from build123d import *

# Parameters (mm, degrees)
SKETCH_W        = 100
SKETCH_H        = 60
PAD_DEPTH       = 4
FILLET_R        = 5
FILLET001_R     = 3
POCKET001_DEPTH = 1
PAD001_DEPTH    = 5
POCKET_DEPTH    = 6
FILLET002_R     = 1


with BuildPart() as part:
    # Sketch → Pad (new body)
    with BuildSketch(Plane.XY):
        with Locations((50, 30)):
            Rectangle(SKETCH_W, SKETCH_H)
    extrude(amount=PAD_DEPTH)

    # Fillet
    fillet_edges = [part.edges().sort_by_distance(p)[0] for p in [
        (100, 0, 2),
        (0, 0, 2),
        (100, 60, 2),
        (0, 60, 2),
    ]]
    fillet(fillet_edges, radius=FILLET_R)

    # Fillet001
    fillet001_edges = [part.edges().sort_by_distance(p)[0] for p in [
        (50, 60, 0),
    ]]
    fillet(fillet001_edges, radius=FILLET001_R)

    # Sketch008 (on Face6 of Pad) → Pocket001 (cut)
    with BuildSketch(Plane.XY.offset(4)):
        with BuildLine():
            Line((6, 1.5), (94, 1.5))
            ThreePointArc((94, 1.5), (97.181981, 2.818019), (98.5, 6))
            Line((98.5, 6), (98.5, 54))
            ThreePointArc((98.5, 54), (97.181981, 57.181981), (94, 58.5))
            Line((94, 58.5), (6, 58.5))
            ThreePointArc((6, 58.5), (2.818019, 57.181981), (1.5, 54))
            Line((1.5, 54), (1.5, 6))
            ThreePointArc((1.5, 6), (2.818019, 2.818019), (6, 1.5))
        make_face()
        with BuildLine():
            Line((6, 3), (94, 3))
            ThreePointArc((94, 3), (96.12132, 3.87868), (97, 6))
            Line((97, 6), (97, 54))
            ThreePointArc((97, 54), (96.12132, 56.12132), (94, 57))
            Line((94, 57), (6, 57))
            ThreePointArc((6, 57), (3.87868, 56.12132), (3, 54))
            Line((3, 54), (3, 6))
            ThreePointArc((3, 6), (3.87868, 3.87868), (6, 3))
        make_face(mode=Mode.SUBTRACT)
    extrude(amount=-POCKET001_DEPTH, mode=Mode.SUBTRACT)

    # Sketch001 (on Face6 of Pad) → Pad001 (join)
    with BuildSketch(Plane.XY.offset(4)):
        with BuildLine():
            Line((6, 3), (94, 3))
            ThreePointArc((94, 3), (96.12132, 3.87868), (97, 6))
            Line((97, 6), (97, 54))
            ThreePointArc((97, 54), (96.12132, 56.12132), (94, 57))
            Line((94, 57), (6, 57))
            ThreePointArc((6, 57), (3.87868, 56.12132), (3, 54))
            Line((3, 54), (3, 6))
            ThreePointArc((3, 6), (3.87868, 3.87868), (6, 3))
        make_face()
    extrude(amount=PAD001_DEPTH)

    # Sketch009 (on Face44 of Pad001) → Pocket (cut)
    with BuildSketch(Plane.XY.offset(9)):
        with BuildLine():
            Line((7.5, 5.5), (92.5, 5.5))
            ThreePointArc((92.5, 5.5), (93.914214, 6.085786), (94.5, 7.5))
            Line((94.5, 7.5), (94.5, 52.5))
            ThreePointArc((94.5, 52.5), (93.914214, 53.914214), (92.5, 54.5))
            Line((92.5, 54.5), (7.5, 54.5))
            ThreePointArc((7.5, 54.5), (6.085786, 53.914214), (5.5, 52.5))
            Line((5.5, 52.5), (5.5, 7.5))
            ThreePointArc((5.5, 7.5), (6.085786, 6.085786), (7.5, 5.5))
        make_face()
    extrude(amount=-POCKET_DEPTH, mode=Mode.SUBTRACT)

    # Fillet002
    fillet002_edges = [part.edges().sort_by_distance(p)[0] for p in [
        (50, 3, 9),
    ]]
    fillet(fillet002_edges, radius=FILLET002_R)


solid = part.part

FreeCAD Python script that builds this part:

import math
import FreeCAD as App
import Part
import Sketcher


def edges_at(feature, points):
    """Names of the edges that pass closest to the given points."""
    edges = feature.Shape.Edges
    near = lambda p: min(range(len(edges)), key=lambda i: edges[i].distToShape(Part.Vertex(*p))[0])
    return sorted({f"Edge{near(p) + 1}" for p in points})


def add_polygon(sketch, points):
    """Adds a closed chain of lines whose ends are joined by coincident constraints."""
    first, n = sketch.GeometryCount, len(points)
    for a, b in zip(points, points[1:] + points[:1]):
        sketch.addGeometry(Part.LineSegment(App.Vector(*a, 0), App.Vector(*b, 0)), False)
    for i in range(n):
        sketch.addConstraint(Sketcher.Constraint("Coincident", first + i, 2, first + (i + 1) % n, 1))

doc = App.newDocument("Part")
params = doc.addObject("Spreadsheet::Sheet", "Params")
for row, (alias, value) in enumerate([
    ("sketch1_width", "100 mm"),
    ("sketch1_height", "60 mm"),
    ("pad1_length", "4 mm"),
    ("fillet_radius", "5 mm"),
    ("fillet2_radius", "3 mm"),
    ("sketch2_radius", "3.000001 mm"),
    ("sketch2_radius2", "4.499998 mm"),
    ("sketch2_width", "88 mm"),
    ("sketch2_height", "48 mm"),
    ("pocket1_length", "1 mm"),
    ("sketch3_radius", "3.000001 mm"),
    ("sketch3_width", "88 mm"),
    ("sketch3_height", "48 mm"),
    ("pad2_length", "5 mm"),
    ("sketch4_radius", "1.999999 mm"),
    ("sketch4_width", "85 mm"),
    ("sketch4_height", "45 mm"),
    ("pocket2_length", "6 mm"),
    ("fillet3_radius", "1 mm"),
], start=1):
    params.set(f"A{row}", alias)
    params.set(f"B{row}", "=" + value)
    params.setAlias(f"B{row}", alias)

body = doc.addObject("PartDesign::Body", "Body")

# Sketch on XY plane
sketch1 = body.newObject("Sketcher::SketchObject", "Sketch")
sketch1.AttachmentSupport = (doc.getObject("XY_Plane"), [""])
sketch1.MapMode = "FlatFace"
add_polygon(sketch1, [(0, 60), (0, 0), (100, 0), (100, 60)])  # lines 0-3
sketch1.addConstraint([
    Sketcher.Constraint("Vertical", 0),
    Sketcher.Constraint("Horizontal", 1),
    Sketcher.Constraint("Vertical", 2),
    Sketcher.Constraint("Horizontal", 3),
    Sketcher.Constraint("Coincident", 0, 2, -1, 1),
    Sketcher.Constraint("DistanceX", 1, 1, 1, 2, 100.0),
    Sketcher.Constraint("DistanceY", 0, 2, 0, 1, 60.0),
])
sketch1.setExpression("Constraints[9]", "Params.sketch1_width")
sketch1.setExpression("Constraints[10]", "Params.sketch1_height")
pad1 = body.newObject("PartDesign::Pad", "Pad")
pad1.Profile = sketch1
pad1.setExpression("Length", "Params.pad1_length")
doc.recompute()

fillet = body.newObject("PartDesign::Fillet", "Fillet")
fillet.Base = (pad1, edges_at(pad1, [
    (100, 0, 2),
    (0, 0, 2),
    (100, 60, 2),
    (0, 60, 2),
]))
fillet.setExpression("Radius", "Params.fillet_radius")
doc.recompute()

fillet2 = body.newObject("PartDesign::Fillet", "Fillet001")
fillet2.Base = (fillet, edges_at(fillet, [(50, 60, 0)]))
fillet2.setExpression("Radius", "Params.fillet2_radius")

# Sketch on XY plane
sketch2 = body.newObject("Sketcher::SketchObject", "Sketch001")
sketch2.AttachmentSupport = (doc.getObject("XY_Plane"), [""])
sketch2.MapMode = "FlatFace"
sketch2.AttachmentOffset = App.Placement(App.Vector(0, 0, 4), App.Rotation())
sketch2.addGeometry([
    Part.LineSegment(App.Vector(6, 1.5, 0), App.Vector(94, 1.5, 0)),  # 0
    Part.ArcOfCircle(Part.Circle(App.Vector(94, 6, 0), App.Vector(0, 0, 1), 4.5), math.radians(-90), math.radians(0)),  # 1
    Part.LineSegment(App.Vector(98.5, 6, 0), App.Vector(98.5, 54, 0)),  # 2
    Part.ArcOfCircle(Part.Circle(App.Vector(94, 54, 0), App.Vector(0, 0, 1), 4.5), math.radians(0), math.radians(90)),  # 3
    Part.LineSegment(App.Vector(94, 58.5, 0), App.Vector(6, 58.5, 0)),  # 4
    Part.ArcOfCircle(Part.Circle(App.Vector(6, 54, 0), App.Vector(0, 0, 1), 4.5), math.radians(90), math.radians(180)),  # 5
    Part.LineSegment(App.Vector(1.5, 54, 0), App.Vector(1.5, 6, 0)),  # 6
    Part.ArcOfCircle(Part.Circle(App.Vector(6, 6, 0), App.Vector(0, 0, 1), 4.5), math.radians(180), math.radians(270)),  # 7
    Part.LineSegment(App.Vector(94, 3, 0), App.Vector(6, 3, 0)),  # 8
    Part.ArcOfCircle(Part.Circle(App.Vector(6, 6, 0), App.Vector(0, 0, 1), 3), math.radians(-180), math.radians(-90)),  # 9
    Part.LineSegment(App.Vector(3, 6, 0), App.Vector(3, 54, 0)),  # 10
    Part.ArcOfCircle(Part.Circle(App.Vector(6, 54, 0), App.Vector(0, 0, 1), 3), math.radians(90), math.radians(180)),  # 11
    Part.LineSegment(App.Vector(6, 57, 0), App.Vector(94, 57, 0)),  # 12
    Part.ArcOfCircle(Part.Circle(App.Vector(94, 54, 0), App.Vector(0, 0, 1), 3), math.radians(0), math.radians(90)),  # 13
    Part.LineSegment(App.Vector(97, 54, 0), App.Vector(97, 6, 0)),  # 14
    Part.ArcOfCircle(Part.Circle(App.Vector(94, 6, 0), App.Vector(0, 0, 1), 3), math.radians(-90), math.radians(0)),  # 15
], False)
sketch2.addConstraint([
    Sketcher.Constraint("Tangent", 0, 2, 1, 1),
    Sketcher.Constraint("Tangent", 1, 2, 2, 1),
    Sketcher.Constraint("Tangent", 2, 2, 3, 1),
    Sketcher.Constraint("Tangent", 3, 2, 4, 1),
    Sketcher.Constraint("Tangent", 4, 2, 5, 1),
    Sketcher.Constraint("Tangent", 5, 2, 6, 1),
    Sketcher.Constraint("Tangent", 6, 2, 7, 1),
    Sketcher.Constraint("Tangent", 7, 2, 0, 1),
    Sketcher.Constraint("Tangent", 8, 2, 9, 2),
    Sketcher.Constraint("Tangent", 9, 1, 10, 1),
    Sketcher.Constraint("Tangent", 10, 2, 11, 2),
    Sketcher.Constraint("Tangent", 11, 1, 12, 1),
    Sketcher.Constraint("Tangent", 12, 2, 13, 2),
    Sketcher.Constraint("Tangent", 13, 1, 14, 1),
    Sketcher.Constraint("Tangent", 14, 2, 15, 2),
    Sketcher.Constraint("Tangent", 15, 1, 8, 1),
    Sketcher.Constraint("Horizontal", 0),
    Sketcher.Constraint("Vertical", 2),
    Sketcher.Constraint("Horizontal", 4),
    Sketcher.Constraint("Vertical", 6),
    Sketcher.Constraint("Horizontal", 8),
    Sketcher.Constraint("Vertical", 10),
    Sketcher.Constraint("Horizontal", 12),
    Sketcher.Constraint("Vertical", 14),
    Sketcher.Constraint("Coincident", 9, 3, 7, 3),
    Sketcher.Constraint("Coincident", 11, 3, 5, 3),
    Sketcher.Constraint("Coincident", 13, 3, 3, 3),
    Sketcher.Constraint("Equal", 1, 3),
    Sketcher.Constraint("Equal", 3, 5),
    Sketcher.Constraint("Equal", 5, 7),
    Sketcher.Constraint("Equal", 13, 15),
    Sketcher.Constraint("Radius", 9, 3.000001),
    Sketcher.Constraint("Radius", 1, 4.499998),
    Sketcher.Constraint("DistanceX", 0, 1, 0, 2, 88.0),
    Sketcher.Constraint("DistanceY", 2, 1, 2, 2, 48.0),
    Sketcher.Constraint("DistanceX", -1, 1, 1, 3, 94.000002),
    Sketcher.Constraint("DistanceY", -1, 1, 1, 3, 5.999998),
])
sketch2.setExpression("Constraints[31]", "Params.sketch2_radius")
sketch2.setExpression("Constraints[32]", "Params.sketch2_radius2")
sketch2.setExpression("Constraints[33]", "Params.sketch2_width")
sketch2.setExpression("Constraints[34]", "Params.sketch2_height")
pocket1 = body.newObject("PartDesign::Pocket", "Pocket")
pocket1.Profile = sketch2
pocket1.setExpression("Length", "Params.pocket1_length")

# Sketch on XY plane
sketch3 = body.newObject("Sketcher::SketchObject", "Sketch002")
sketch3.AttachmentSupport = (doc.getObject("XY_Plane"), [""])
sketch3.MapMode = "FlatFace"
sketch3.AttachmentOffset = App.Placement(App.Vector(0, 0, 4), App.Rotation())
sketch3.addGeometry([
    Part.LineSegment(App.Vector(6, 3, 0), App.Vector(94, 3, 0)),  # 0
    Part.ArcOfCircle(Part.Circle(App.Vector(94, 6, 0), App.Vector(0, 0, 1), 3), math.radians(-90), math.radians(0)),  # 1
    Part.LineSegment(App.Vector(97, 6, 0), App.Vector(97, 54, 0)),  # 2
    Part.ArcOfCircle(Part.Circle(App.Vector(94, 54, 0), App.Vector(0, 0, 1), 3), math.radians(0), math.radians(90)),  # 3
    Part.LineSegment(App.Vector(94, 57, 0), App.Vector(6, 57, 0)),  # 4
    Part.ArcOfCircle(Part.Circle(App.Vector(6, 54, 0), App.Vector(0, 0, 1), 3), math.radians(90), math.radians(180)),  # 5
    Part.LineSegment(App.Vector(3, 54, 0), App.Vector(3, 6, 0)),  # 6
    Part.ArcOfCircle(Part.Circle(App.Vector(6, 6, 0), App.Vector(0, 0, 1), 3), math.radians(-180), math.radians(-90)),  # 7
], False)
sketch3.addConstraint([
    Sketcher.Constraint("Tangent", 0, 2, 1, 1),
    Sketcher.Constraint("Tangent", 1, 2, 2, 1),
    Sketcher.Constraint("Tangent", 2, 2, 3, 1),
    Sketcher.Constraint("Tangent", 3, 2, 4, 1),
    Sketcher.Constraint("Tangent", 4, 2, 5, 1),
    Sketcher.Constraint("Tangent", 5, 2, 6, 1),
    Sketcher.Constraint("Tangent", 6, 2, 7, 1),
    Sketcher.Constraint("Tangent", 7, 2, 0, 1),
    Sketcher.Constraint("Horizontal", 0),
    Sketcher.Constraint("Vertical", 2),
    Sketcher.Constraint("Horizontal", 4),
    Sketcher.Constraint("Vertical", 6),
    Sketcher.Constraint("Equal", 1, 3),
    Sketcher.Constraint("Equal", 3, 5),
    Sketcher.Constraint("Equal", 5, 7),
    Sketcher.Constraint("Radius", 1, 3.000001),
    Sketcher.Constraint("DistanceX", 0, 1, 0, 2, 88.0),
    Sketcher.Constraint("DistanceY", 2, 1, 2, 2, 48.0),
    Sketcher.Constraint("DistanceX", -1, 1, 1, 3, 93.999999),
    Sketcher.Constraint("DistanceY", -1, 1, 1, 3, 6.000001),
])
sketch3.setExpression("Constraints[15]", "Params.sketch3_radius")
sketch3.setExpression("Constraints[16]", "Params.sketch3_width")
sketch3.setExpression("Constraints[17]", "Params.sketch3_height")
pad2 = body.newObject("PartDesign::Pad", "Pad001")
pad2.Profile = sketch3
pad2.setExpression("Length", "Params.pad2_length")

# Sketch on XY plane
sketch4 = body.newObject("Sketcher::SketchObject", "Sketch003")
sketch4.AttachmentSupport = (doc.getObject("XY_Plane"), [""])
sketch4.MapMode = "FlatFace"
sketch4.AttachmentOffset = App.Placement(App.Vector(0, 0, 9), App.Rotation())
sketch4.addGeometry([
    Part.LineSegment(App.Vector(7.5, 5.5, 0), App.Vector(92.5, 5.5, 0)),  # 0
    Part.ArcOfCircle(Part.Circle(App.Vector(92.5, 7.5, 0), App.Vector(0, 0, 1), 2), math.radians(-90), math.radians(0)),  # 1
    Part.LineSegment(App.Vector(94.5, 7.5, 0), App.Vector(94.5, 52.5, 0)),  # 2
    Part.ArcOfCircle(Part.Circle(App.Vector(92.5, 52.5, 0), App.Vector(0, 0, 1), 2), math.radians(0), math.radians(90)),  # 3
    Part.LineSegment(App.Vector(92.5, 54.5, 0), App.Vector(7.5, 54.5, 0)),  # 4
    Part.ArcOfCircle(Part.Circle(App.Vector(7.5, 52.5, 0), App.Vector(0, 0, 1), 2), math.radians(90), math.radians(180)),  # 5
    Part.LineSegment(App.Vector(5.5, 52.5, 0), App.Vector(5.5, 7.5, 0)),  # 6
    Part.ArcOfCircle(Part.Circle(App.Vector(7.5, 7.5, 0), App.Vector(0, 0, 1), 2), math.radians(180), math.radians(270)),  # 7
], False)
sketch4.addConstraint([
    Sketcher.Constraint("Tangent", 0, 2, 1, 1),
    Sketcher.Constraint("Tangent", 1, 2, 2, 1),
    Sketcher.Constraint("Tangent", 2, 2, 3, 1),
    Sketcher.Constraint("Tangent", 3, 2, 4, 1),
    Sketcher.Constraint("Tangent", 4, 2, 5, 1),
    Sketcher.Constraint("Tangent", 5, 2, 6, 1),
    Sketcher.Constraint("Tangent", 6, 2, 7, 1),
    Sketcher.Constraint("Tangent", 7, 2, 0, 1),
    Sketcher.Constraint("Horizontal", 0),
    Sketcher.Constraint("Vertical", 2),
    Sketcher.Constraint("Horizontal", 4),
    Sketcher.Constraint("Vertical", 6),
    Sketcher.Constraint("Equal", 1, 3),
    Sketcher.Constraint("Equal", 3, 5),
    Sketcher.Constraint("Equal", 5, 7),
    Sketcher.Constraint("Radius", 1, 1.999999),
    Sketcher.Constraint("DistanceX", 0, 1, 0, 2, 85.0),
    Sketcher.Constraint("DistanceY", 2, 1, 2, 2, 45.0),
    Sketcher.Constraint("DistanceX", -1, 1, 1, 3, 92.500001),
    Sketcher.Constraint("DistanceY", -1, 1, 1, 3, 7.499999),
])
sketch4.setExpression("Constraints[15]", "Params.sketch4_radius")
sketch4.setExpression("Constraints[16]", "Params.sketch4_width")
sketch4.setExpression("Constraints[17]", "Params.sketch4_height")
pocket2 = body.newObject("PartDesign::Pocket", "Pocket001")
pocket2.Profile = sketch4
pocket2.setExpression("Length", "Params.pocket2_length")
doc.recompute()

fillet3 = body.newObject("PartDesign::Fillet", "Fillet002")
fillet3.Base = (pocket2, edges_at(pocket2, [(50, 3, 9)]))
fillet3.setExpression("Radius", "Params.fillet3_radius")

doc.recompute()
